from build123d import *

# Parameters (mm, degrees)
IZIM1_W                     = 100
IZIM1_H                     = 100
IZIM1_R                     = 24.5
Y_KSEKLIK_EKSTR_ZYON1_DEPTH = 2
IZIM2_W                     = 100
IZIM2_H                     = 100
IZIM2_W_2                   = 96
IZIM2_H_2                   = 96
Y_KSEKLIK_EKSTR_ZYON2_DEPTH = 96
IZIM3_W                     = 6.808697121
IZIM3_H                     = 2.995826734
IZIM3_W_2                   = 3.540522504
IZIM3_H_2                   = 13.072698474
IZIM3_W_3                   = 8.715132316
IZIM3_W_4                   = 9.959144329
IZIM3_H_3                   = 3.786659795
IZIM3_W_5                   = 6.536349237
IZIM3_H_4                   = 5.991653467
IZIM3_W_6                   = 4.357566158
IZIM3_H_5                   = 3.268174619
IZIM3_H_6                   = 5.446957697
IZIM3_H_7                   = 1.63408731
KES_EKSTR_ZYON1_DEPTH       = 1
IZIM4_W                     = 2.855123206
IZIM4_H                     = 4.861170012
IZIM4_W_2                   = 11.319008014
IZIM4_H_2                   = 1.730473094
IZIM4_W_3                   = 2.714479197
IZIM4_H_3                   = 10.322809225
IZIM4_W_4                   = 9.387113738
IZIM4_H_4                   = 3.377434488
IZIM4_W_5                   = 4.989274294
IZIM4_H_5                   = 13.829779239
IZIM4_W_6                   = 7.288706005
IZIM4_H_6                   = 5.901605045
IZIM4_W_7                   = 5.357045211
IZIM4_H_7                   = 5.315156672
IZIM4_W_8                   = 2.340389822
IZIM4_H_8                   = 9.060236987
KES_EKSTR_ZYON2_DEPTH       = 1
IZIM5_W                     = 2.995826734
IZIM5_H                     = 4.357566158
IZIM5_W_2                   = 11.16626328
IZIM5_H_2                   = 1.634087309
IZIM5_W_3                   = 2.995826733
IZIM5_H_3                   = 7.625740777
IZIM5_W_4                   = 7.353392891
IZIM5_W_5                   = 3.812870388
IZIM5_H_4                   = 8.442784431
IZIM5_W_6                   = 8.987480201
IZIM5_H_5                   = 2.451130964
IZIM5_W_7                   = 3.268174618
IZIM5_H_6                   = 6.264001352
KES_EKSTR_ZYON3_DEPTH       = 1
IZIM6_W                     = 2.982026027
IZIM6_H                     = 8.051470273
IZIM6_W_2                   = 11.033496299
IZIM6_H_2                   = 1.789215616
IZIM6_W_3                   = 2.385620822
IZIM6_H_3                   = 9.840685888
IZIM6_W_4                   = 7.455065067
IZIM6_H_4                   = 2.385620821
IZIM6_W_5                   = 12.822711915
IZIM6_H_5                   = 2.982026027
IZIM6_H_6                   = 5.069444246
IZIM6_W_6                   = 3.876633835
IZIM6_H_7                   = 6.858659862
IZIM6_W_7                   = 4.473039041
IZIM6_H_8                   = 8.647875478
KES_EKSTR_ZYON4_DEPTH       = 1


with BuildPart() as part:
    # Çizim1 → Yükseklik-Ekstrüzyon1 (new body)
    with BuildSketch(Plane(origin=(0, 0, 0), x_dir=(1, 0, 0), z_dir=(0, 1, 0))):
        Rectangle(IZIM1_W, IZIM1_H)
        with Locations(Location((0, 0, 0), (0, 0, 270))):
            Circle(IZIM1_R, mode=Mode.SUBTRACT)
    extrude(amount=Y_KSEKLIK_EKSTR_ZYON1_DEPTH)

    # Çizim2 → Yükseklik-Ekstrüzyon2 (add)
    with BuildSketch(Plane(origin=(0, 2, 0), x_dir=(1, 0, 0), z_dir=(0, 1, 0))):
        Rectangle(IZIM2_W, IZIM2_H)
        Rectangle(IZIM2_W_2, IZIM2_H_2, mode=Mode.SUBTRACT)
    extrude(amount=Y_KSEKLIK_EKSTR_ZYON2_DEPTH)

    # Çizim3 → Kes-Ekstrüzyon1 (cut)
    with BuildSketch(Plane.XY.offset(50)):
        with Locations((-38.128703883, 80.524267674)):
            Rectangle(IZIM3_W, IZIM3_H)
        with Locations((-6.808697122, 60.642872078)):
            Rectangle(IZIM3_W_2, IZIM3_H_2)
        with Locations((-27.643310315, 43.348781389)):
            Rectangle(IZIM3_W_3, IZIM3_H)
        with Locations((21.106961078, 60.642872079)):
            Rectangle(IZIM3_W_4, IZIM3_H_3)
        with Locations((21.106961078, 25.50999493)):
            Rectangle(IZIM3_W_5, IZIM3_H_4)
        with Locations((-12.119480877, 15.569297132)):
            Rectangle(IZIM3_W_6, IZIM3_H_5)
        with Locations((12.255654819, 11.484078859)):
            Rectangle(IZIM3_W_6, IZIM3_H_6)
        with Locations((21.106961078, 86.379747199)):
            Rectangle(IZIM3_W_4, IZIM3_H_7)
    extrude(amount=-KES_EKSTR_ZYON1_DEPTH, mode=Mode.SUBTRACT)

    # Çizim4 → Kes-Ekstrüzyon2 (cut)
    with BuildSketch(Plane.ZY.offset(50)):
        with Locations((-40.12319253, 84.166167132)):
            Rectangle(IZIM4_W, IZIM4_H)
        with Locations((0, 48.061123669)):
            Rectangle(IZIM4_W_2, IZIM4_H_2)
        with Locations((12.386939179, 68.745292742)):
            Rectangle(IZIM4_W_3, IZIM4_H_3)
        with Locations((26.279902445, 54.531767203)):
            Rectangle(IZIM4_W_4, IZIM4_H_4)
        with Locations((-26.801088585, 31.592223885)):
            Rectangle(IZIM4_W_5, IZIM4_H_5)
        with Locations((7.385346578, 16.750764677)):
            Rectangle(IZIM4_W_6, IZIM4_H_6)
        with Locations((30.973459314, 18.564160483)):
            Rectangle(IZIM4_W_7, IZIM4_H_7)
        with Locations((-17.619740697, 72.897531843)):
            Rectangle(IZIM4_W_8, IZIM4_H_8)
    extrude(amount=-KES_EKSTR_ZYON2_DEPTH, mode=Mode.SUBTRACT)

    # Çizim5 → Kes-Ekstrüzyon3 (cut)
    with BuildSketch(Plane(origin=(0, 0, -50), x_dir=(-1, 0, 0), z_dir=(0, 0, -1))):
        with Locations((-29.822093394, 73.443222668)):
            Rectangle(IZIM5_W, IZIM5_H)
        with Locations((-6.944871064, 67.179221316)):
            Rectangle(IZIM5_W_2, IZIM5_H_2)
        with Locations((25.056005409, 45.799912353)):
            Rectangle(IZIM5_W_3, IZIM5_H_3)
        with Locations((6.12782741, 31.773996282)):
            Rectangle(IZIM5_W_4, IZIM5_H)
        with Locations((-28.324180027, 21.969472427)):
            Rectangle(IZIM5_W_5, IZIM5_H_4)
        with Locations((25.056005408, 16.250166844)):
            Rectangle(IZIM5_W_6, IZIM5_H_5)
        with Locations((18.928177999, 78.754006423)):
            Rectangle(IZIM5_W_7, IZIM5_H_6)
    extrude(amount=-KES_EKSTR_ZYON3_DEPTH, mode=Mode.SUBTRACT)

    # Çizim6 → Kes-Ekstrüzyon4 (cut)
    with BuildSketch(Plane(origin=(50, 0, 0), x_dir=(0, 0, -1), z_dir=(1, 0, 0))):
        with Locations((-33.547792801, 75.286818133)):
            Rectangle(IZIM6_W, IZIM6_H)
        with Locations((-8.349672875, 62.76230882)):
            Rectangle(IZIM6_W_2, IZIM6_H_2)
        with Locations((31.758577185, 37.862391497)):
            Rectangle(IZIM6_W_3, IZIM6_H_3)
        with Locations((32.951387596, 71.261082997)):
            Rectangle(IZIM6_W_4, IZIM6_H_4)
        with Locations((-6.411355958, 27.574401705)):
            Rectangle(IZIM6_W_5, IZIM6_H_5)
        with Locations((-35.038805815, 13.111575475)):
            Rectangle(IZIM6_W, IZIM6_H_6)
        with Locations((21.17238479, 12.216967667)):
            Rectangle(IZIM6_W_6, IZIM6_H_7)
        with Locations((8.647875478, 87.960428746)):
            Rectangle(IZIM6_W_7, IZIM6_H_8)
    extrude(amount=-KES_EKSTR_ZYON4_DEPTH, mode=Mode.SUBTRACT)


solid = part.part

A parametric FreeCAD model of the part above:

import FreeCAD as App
import Part
import Sketcher


def add_polygon(sketch, points):
    """Adds a closed chain of lines whose ends are joined by coincident constraints."""
    first, n = sketch.GeometryCount, len(points)
    for a, b in zip(points, points[1:] + points[:1]):
        sketch.addGeometry(Part.LineSegment(App.Vector(*a, 0), App.Vector(*b, 0)), False)
    for i in range(n):
        sketch.addConstraint(Sketcher.Constraint("Coincident", first + i, 2, first + (i + 1) % n, 1))

doc = App.newDocument("Part")
body = doc.addObject("PartDesign::Body", "Body")

sketch1 = body.newObject("Sketcher::SketchObject", "Sketch")
sketch1.AttachmentSupport = (doc.getObject("XZ_Plane"), [""])
sketch1.MapMode = "FlatFace"
add_polygon(sketch1, [(-50, -50), (-50, 50), (50, 50), (50, -50)])
sketch1.addGeometry(Part.Circle(App.Vector(0, 0, 0), App.Vector(0, 0, 1), 24), False)
sketch1.addConstraint([
    Sketcher.Constraint("Vertical", 0),
    Sketcher.Constraint("Horizontal", 1),
    Sketcher.Constraint("Vertical", 2),
    Sketcher.Constraint("Horizontal", 3),
    Sketcher.Constraint("Coincident", 4, 3, -1, 1),
    Sketcher.Constraint("Symmetric", 0, 2, 2, 2, -1, 1),
    Sketcher.Constraint("Equal", 3, 0),
    Sketcher.Constraint("Diameter", 4, 49.0),
    Sketcher.Constraint("DistanceX", 1, 1, 1, 2, 100.0),
])
pad1 = body.newObject("PartDesign::Pad", "Pad")
pad1.Profile = sketch1
pad1.Length = 2
pad1.Reversed = True

sketch2 = body.newObject("Sketcher::SketchObject", "Sketch001")
sketch2.AttachmentSupport = (doc.getObject("XZ_Plane"), [""])
sketch2.MapMode = "FlatFace"
sketch2.AttachmentOffset = App.Placement(App.Vector(0, 0, -2), App.Rotation())
add_polygon(sketch2, [(-50, -50), (-50, 50), (50, 50), (50, -50)])
add_polygon(sketch2, [(48, 48), (-48, 48), (-48, -48), (48, -48)])
sketch2.addConstraint([
    Sketcher.Constraint("Vertical", 0),
    Sketcher.Constraint("Horizontal", 1),
    Sketcher.Constraint("Vertical", 2),
    Sketcher.Constraint("Horizontal", 3),
    Sketcher.Constraint("Horizontal", 4),
    Sketcher.Constraint("Vertical", 5),
    Sketcher.Constraint("Horizontal", 6),
    Sketcher.Constraint("Vertical", 7),
    Sketcher.Constraint("Symmetric", 0, 2, 2, 2, -1, 1),
    Sketcher.Constraint("Symmetric", 4, 2, 6, 2, -1, 1),
    Sketcher.Constraint("Equal", 3, 0),
    Sketcher.Constraint("Equal", 6, 5),
    Sketcher.Constraint("DistanceX", 1, 1, 1, 2, 100.0),
    Sketcher.Constraint("DistanceX", 4, 2, 4, 1, 96.0),
])
pad2 = body.newObject("PartDesign::Pad", "Pad001")
pad2.Profile = sketch2
pad2.Length = 96
pad2.Reversed = True

sketch3 = body.newObject("Sketcher::SketchObject", "Sketch002")
sketch3.AttachmentSupport = (doc.getObject("XY_Plane"), [""])
sketch3.MapMode = "FlatFace"
sketch3.AttachmentOffset = App.Placement(App.Vector(0, 0, 50), App.Rotation())
add_polygon(sketch3, [(-41.5, 82), (-41.5, 79), (-34.7, 79), (-34.7, 82)])
add_polygon(sketch3, [(-8.6, 67.2), (-8.6, 54.1), (-5, 54.1), (-5, 67.2)])
add_polygon(sketch3, [(-32, 44.8), (-32, 41.9), (-23.3, 41.9), (-23.3, 44.8)])
add_polygon(sketch3, [(16.1, 62.5), (16.1, 58.7), (26.1, 58.7), (26.1, 62.5)])
add_polygon(sketch3, [(17.8, 28.5), (17.8, 22.5), (24.4, 22.5), (24.4, 28.5)])
add_polygon(sketch3, [(-14.3, 17.2), (-14.3, 13.9), (-9.9, 13.9), (-9.9, 17.2)])
add_polygon(sketch3, [(10.1, 14.2), (10.1, 8.8), (14.4, 8.8), (14.4, 14.2)])
add_polygon(sketch3, [(16.1, 87.2), (16.1, 85.6), (26.1, 85.6), (26.1, 87.2)])
sketch3.addConstraint([
    Sketcher.Constraint("Vertical", 0),
    Sketcher.Constraint("Horizontal", 1),
    Sketcher.Constraint("Vertical", 2),
    Sketcher.Constraint("Horizontal", 3),
    Sketcher.Constraint("Vertical", 4),
    Sketcher.Constraint("Horizontal", 5),
    Sketcher.Constraint("Vertical", 6),
    Sketcher.Constraint("Horizontal", 7),
    Sketcher.Constraint("Vertical", 8),
    Sketcher.Constraint("Horizontal", 9),
    Sketcher.Constraint("Vertical", 10),
    Sketcher.Constraint("Horizontal", 11),
    Sketcher.Constraint("Vertical", 12),
    Sketcher.Constraint("Horizontal", 13),
    Sketcher.Constraint("Vertical", 14),
    Sketcher.Constraint("Horizontal", 15),
    Sketcher.Constraint("Vertical", 16),
    Sketcher.Constraint("Horizontal", 17),
    Sketcher.Constraint("Vertical", 18),
    Sketcher.Constraint("Horizontal", 19),
    Sketcher.Constraint("Vertical", 20),
    Sketcher.Constraint("Horizontal", 21),
    Sketcher.Constraint("Vertical", 22),
    Sketcher.Constraint("Horizontal", 23),
    Sketcher.Constraint("Vertical", 24),
    Sketcher.Constraint("Horizontal", 25),
    Sketcher.Constraint("Vertical", 26),
    Sketcher.Constraint("Horizontal", 27),
    Sketcher.Constraint("Vertical", 28),
    Sketcher.Constraint("Horizontal", 29),
    Sketcher.Constraint("Vertical", 30),
    Sketcher.Constraint("Horizontal", 31),
    Sketcher.Constraint("Vertical", 15, 2, 28, 2),
    Sketcher.Constraint("Vertical", 14, 2, 29, 2),
    Sketcher.Constraint("Equal", 23, 25),
    Sketcher.Constraint("Equal", 2, 8),
    Sketcher.Constraint("DistanceY", 4, 2, 4, 1, 13.072698),
    Sketcher.Constraint("DistanceX", 17, 1, 17, 2, 6.536349),
    Sketcher.Constraint("DistanceY", 12, 2, 12, 1, 3.78666),
    Sketcher.Constraint("DistanceY", -1, 1, 14, 2, 62.536202),
    Sketcher.Constraint("DistanceY", -1, 1, 24, 2, 8.7606),
    Sketcher.Constraint("DistanceY", 15, 2, 28, 2, 23.026502),
    Sketcher.Constraint("DistanceX", 1, 1, 1, 2, 6.808697),
    Sketcher.Constraint("DistanceX", 5, 1, 5, 2, 3.540523),
    Sketcher.Constraint("DistanceX", 9, 1, 9, 2, 8.715132),
    Sketcher.Constraint("DistanceX", 13, 1, 13, 2, 9.959144),
    Sketcher.Constraint("DistanceX", 21, 1, 21, 2, 4.357566),
    Sketcher.Constraint("DistanceY", 0, 2, 0, 1, 2.995827),
    Sketcher.Constraint("DistanceY", 16, 2, 16, 1, 5.991653),
    Sketcher.Constraint("DistanceY", 20, 2, 20, 1, 3.268175),
    Sketcher.Constraint("DistanceY", 24, 2, 24, 1, 5.446958),
    Sketcher.Constraint("DistanceY", 28, 2, 28, 1, 1.634087),
    Sketcher.Constraint("DistanceY", -1, 1, 2, 2, 82.022181),
    Sketcher.Constraint("DistanceX", 4, 2, -1, 1, 8.578958),
    Sketcher.Constraint("DistanceY", -1, 1, 6, 2, 67.179221),
    Sketcher.Constraint("DistanceY", -1, 1, 8, 2, 41.850868),
    Sketcher.Constraint("DistanceX", -1, 1, 12, 2, 16.127389),
    Sketcher.Constraint("DistanceY", -1, 1, 16, 2, 22.514168),
    Sketcher.Constraint("DistanceY", -1, 1, 20, 2, 13.93521),
    Sketcher.Constraint("DistanceX", -1, 1, 24, 2, 10.076872),
    Sketcher.Constraint("DistanceX", 1, 2, 5, 2, 29.685919),
    Sketcher.Constraint("DistanceX", 8, 2, 4, 2, 23.421918),
    Sketcher.Constraint("DistanceX", 9, 2, 20, 2, 8.98748),
    Sketcher.Constraint("DistanceX", 20, 2, 16, 2, 32.13705),
])
pocket1 = body.newObject("PartDesign::Pocket", "Pocket")
pocket1.Profile = sketch3
pocket1.Length = 1

sketch4 = body.newObject("Sketcher::SketchObject", "Sketch003")
sketch4.AttachmentSupport = (doc.getObject("YZ_Plane"), [""])
sketch4.MapMode = "FlatFace"
sketch4.AttachmentOffset = App.Placement(App.Vector(0, 0, -50), App.Rotation())
add_polygon(sketch4, [(86.6, -41.6), (81.7, -41.6), (81.7, -38.7), (86.6, -38.7)])
add_polygon(sketch4, [(48.9, -5.7), (47.2, -5.7), (47.2, 5.7), (48.9, 5.7)])
add_polygon(sketch4, [(73.9, 11), (63.6, 11), (63.6, 13.7), (73.9, 13.7)])
add_polygon(sketch4, [(56.2, 21.6), (52.8, 21.6), (52.8, 31), (56.2, 31)])
add_polygon(sketch4, [(38.5, -29.3), (24.7, -29.3), (24.7, -24.3), (38.5, -24.3)])
add_polygon(sketch4, [(19.7, 3.7), (13.8, 3.7), (13.8, 11), (19.7, 11)])
add_polygon(sketch4, [(21.2, 28.3), (15.9, 28.3), (15.9, 33.7), (21.2, 33.7)])
add_polygon(sketch4, [(77.4, -18.8), (68.4, -18.8), (68.4, -16.4), (77.4, -16.4)])
sketch4.addConstraint([
    Sketcher.Constraint("Horizontal", 0),
    Sketcher.Constraint("Vertical", 1),
    Sketcher.Constraint("Horizontal", 2),
    Sketcher.Constraint("Vertical", 3),
    Sketcher.Constraint("Horizontal", 4),
    Sketcher.Constraint("Vertical", 5),
    Sketcher.Constraint("Horizontal", 6),
    Sketcher.Constraint("Vertical", 7),
    Sketcher.Constraint("Horizontal", 8),
    Sketcher.Constraint("Vertical", 9),
    Sketcher.Constraint("Horizontal", 10),
    Sketcher.Constraint("Vertical", 11),
    Sketcher.Constraint("Horizontal", 12),
    Sketcher.Constraint("Vertical", 13),
    Sketcher.Constraint("Horizontal", 14),
    Sketcher.Constraint("Vertical", 15),
    Sketcher.Constraint("Horizontal", 16),
    Sketcher.Constraint("Vertical", 17),
    Sketcher.Constraint("Horizontal", 18),
    Sketcher.Constraint("Vertical", 19),
    Sketcher.Constraint("Horizontal", 20),
    Sketcher.Constraint("Vertical", 21),
    Sketcher.Constraint("Horizontal", 22),
    Sketcher.Constraint("Vertical", 23),
    Sketcher.Constraint("Horizontal", 24),
    Sketcher.Constraint("Vertical", 25),
    Sketcher.Constraint("Horizontal", 26),
    Sketcher.Constraint("Vertical", 27),
    Sketcher.Constraint("Horizontal", 28),
    Sketcher.Constraint("Vertical", 29),
    Sketcher.Constraint("Horizontal", 30),
    Sketcher.Constraint("Vertical", 31),
    Sketcher.Constraint("Horizontal", 11, 2, 21, 2),
    Sketcher.Constraint("DistanceX", 5, 2, 8, 2, 16.388001),
    Sketcher.Constraint("DistanceX", 0, 2, 0, 1, 4.86117),
    Sketcher.Constraint("DistanceX", 8, 2, 8, 1, 10.322809),
    Sketcher.Constraint("DistanceX", 16, 2, 16, 1, 13.829779),
    Sketcher.Constraint("DistanceY", 5, 1, 5, 2, 11.319008),
    Sketcher.Constraint("DistanceY", 9, 1, 9, 2, 2.714479),
    Sketcher.Constraint("DistanceY", 29, 1, 29, 2, 2.34039),
    Sketcher.Constraint("DistanceY", -1, 1, 8, 2, 11.0297),
    Sketcher.Constraint("DistanceX", 20, 2, 6, 2, 35.126398),
    Sketcher.Constraint("DistanceX", 30, 2, 2, 2, 9.169102),
    Sketcher.Constraint("DistanceX", 4, 2, 4, 1, 1.730473),
    Sketcher.Constraint("DistanceX", 12, 2, 12, 1, 3.377434),
    Sketcher.Constraint("DistanceX", 20, 2, 20, 1, 5.901605),
    Sketcher.Constraint("DistanceX", 24, 2, 24, 1, 5.315157),
    Sketcher.Constraint("DistanceX", 28, 2, 28, 1, 9.060237),
    Sketcher.Constraint("DistanceY", 1, 1, 1, 2, 2.855123),
    Sketcher.Constraint("DistanceY", 13, 1, 13, 2, 9.387114),
    Sketcher.Constraint("DistanceY", 17, 1, 17, 2, 4.989274),
    Sketcher.Constraint("DistanceY", 21, 1, 21, 2, 7.288706),
    Sketcher.Constraint("DistanceY", 25, 1, 25, 2, 5.357045),
    Sketcher.Constraint("DistanceY", 1, 2, -1, 1, 38.695631),
    Sketcher.Constraint("DistanceX", -1, 1, 6, 2, 48.92636),
    Sketcher.Constraint("DistanceX", -1, 1, 12, 2, 52.84305),
    Sketcher.Constraint("DistanceY", -1, 1, 13, 2, 30.973459),
    Sketcher.Constraint("DistanceY", 17, 2, -1, 1, 24.306451),
    Sketcher.Constraint("DistanceY", -1, 1, 25, 2, 33.651982),
    Sketcher.Constraint("DistanceX", -1, 1, 26, 2, 21.221739),
    Sketcher.Constraint("DistanceX", -1, 1, 30, 2, 77.42765),
    Sketcher.Constraint("DistanceY", 0, 2, 4, 2, 35.89125),
    Sketcher.Constraint("DistanceY", 28, 2, 7, 2, 13.130432),
    Sketcher.Constraint("DistanceX", -1, 1, 16, 2, 24.677334),
])
pocket2 = body.newObject("PartDesign::Pocket", "Pocket001")
pocket2.Profile = sketch4
pocket2.Length = 1
pocket2.Reversed = True

sketch5 = body.newObject("Sketcher::SketchObject", "Sketch004")
sketch5.AttachmentSupport = (doc.getObject("XY_Plane"), [""])
sketch5.MapMode = "FlatFace"
sketch5.AttachmentOffset = App.Placement(App.Vector(0, 0, -50), App.Rotation())
add_polygon(sketch5, [(31.3, 75.6), (31.3, 71.3), (28.3, 71.3), (28.3, 75.6)])
add_polygon(sketch5, [(12.5, 68), (12.5, 66.4), (1.4, 66.4), (1.4, 68)])
add_polygon(sketch5, [(-23.6, 49.6), (-23.6, 42), (-26.6, 42), (-26.6, 49.6)])
add_polygon(sketch5, [(-2.5, 34), (-2.5, 29.6), (-9.8, 29.6), (-9.8, 34)])
add_polygon(sketch5, [(30.2, 26.2), (30.2, 17.7), (26.4, 17.7), (26.4, 26.2)])
add_polygon(sketch5, [(-20.6, 17.5), (-20.6, 15), (-29.5, 15), (-29.5, 17.5)])
add_polygon(sketch5, [(-17.3, 81.9), (-17.3, 75.6), (-20.6, 75.6), (-20.6, 81.9)])
sketch5.addConstraint([
    Sketcher.Constraint("Vertical", 0),
    Sketcher.Constraint("Horizontal", 1),
    Sketcher.Constraint("Vertical", 2),
    Sketcher.Constraint("Horizontal", 3),
    Sketcher.Constraint("Vertical", 4),
    Sketcher.Constraint("Horizontal", 5),
    Sketcher.Constraint("Vertical", 6),
    Sketcher.Constraint("Horizontal", 7),
    Sketcher.Constraint("Vertical", 8),
    Sketcher.Constraint("Horizontal", 9),
    Sketcher.Constraint("Vertical", 10),
    Sketcher.Constraint("Horizontal", 11),
    Sketcher.Constraint("Vertical", 12),
    Sketcher.Constraint("Horizontal", 13),
    Sketcher.Constraint("Vertical", 14),
    Sketcher.Constraint("Horizontal", 15),
    Sketcher.Constraint("Vertical", 16),
    Sketcher.Constraint("Horizontal", 17),
    Sketcher.Constraint("Vertical", 18),
    Sketcher.Constraint("Horizontal", 19),
    Sketcher.Constraint("Vertical", 20),
    Sketcher.Constraint("Horizontal", 21),
    Sketcher.Constraint("Vertical", 22),
    Sketcher.Constraint("Horizontal", 23),
    Sketcher.Constraint("Vertical", 24),
    Sketcher.Constraint("Horizontal", 25),
    Sketcher.Constraint("Vertical", 26),
    Sketcher.Constraint("Horizontal", 27),
    Sketcher.Constraint("Horizontal", 3, 2, 24, 2),
    Sketcher.Constraint("Vertical", 23, 2, 25, 2),
    Sketcher.Constraint("Equal", 3, 9),
    Sketcher.Constraint("Equal", 2, 12),
    Sketcher.Constraint("DistanceY", 24, 2, 24, 1, 6.264001),
    Sketcher.Constraint("DistanceX", 11, 2, 24, 2, 6.264001),
    Sketcher.Constraint("DistanceX", 17, 2, 17, 1, 3.81287),
    Sketcher.Constraint("DistanceX", 21, 2, 21, 1, 8.98748),
    Sketcher.Constraint("DistanceY", 8, 2, 8, 1, 7.625741),
    Sketcher.Constraint("DistanceY", 20, 2, 20, 1, 2.451131),
    Sketcher.Constraint("DistanceY", -1, 1, 20, 2, 15.024601),
    Sketcher.Constraint("DistanceY", 16, 2, 15, 2, 16.204699),
    Sketcher.Constraint("DistanceX", 1, 2, 1, 1, 2.995827),
    Sketcher.Constraint("DistanceX", 5, 2, 5, 1, 11.166263),
    Sketcher.Constraint("DistanceX", 13, 2, 13, 1, 7.353393),
    Sketcher.Constraint("DistanceX", 25, 2, 25, 1, 3.268175),
    Sketcher.Constraint("DistanceY", 0, 2, 0, 1, 4.357566),
    Sketcher.Constraint("DistanceY", 4, 2, 4, 1, 1.634087),
    Sketcher.Constraint("DistanceY", 16, 2, 16, 1, 8.442784),
    Sketcher.Constraint("DistanceY", -1, 1, 0, 2, 71.26444),
    Sketcher.Constraint("DistanceX", -1, 1, 1, 2, 28.32418),
    Sketcher.Constraint("DistanceX", -1, 1, 5, 2, 1.361739),
    Sketcher.Constraint("DistanceY", -1, 1, 8, 2, 41.987042),
    Sketcher.Constraint("DistanceX", 9, 2, -1, 1, 26.553919),
    Sketcher.Constraint("DistanceX", 12, 2, -1, 1, 2.451131),
    Sketcher.Constraint("DistanceY", -1, 1, 14, 2, 33.952779),
    Sketcher.Constraint("DistanceY", 4, 2, 1, 2, 4.902262),
    Sketcher.Constraint("DistanceX", 13, 2, 16, 2, 40.035139),
])
pocket3 = body.newObject("PartDesign::Pocket", "Pocket002")
pocket3.Profile = sketch5
pocket3.Length = 1
pocket3.Reversed = True

sketch6 = body.newObject("Sketcher::SketchObject", "Sketch005")
sketch6.AttachmentSupport = (doc.getObject("YZ_Plane"), [""])
sketch6.MapMode = "FlatFace"
sketch6.AttachmentOffset = App.Placement(App.Vector(0, 0, 50), App.Rotation())
add_polygon(sketch6, [(79.3, 35), (71.3, 35), (71.3, 32.1), (79.3, 32.1)])
add_polygon(sketch6, [(63.7, 13.9), (61.9, 13.9), (61.9, 2.8), (63.7, 2.8)])
add_polygon(sketch6, [(42.8, -30.6), (32.9, -30.6), (32.9, -33), (42.8, -33)])
add_polygon(sketch6, [(72.5, -29.2), (70.1, -29.2), (70.1, -36.7), (72.5, -36.7)])
add_polygon(sketch6, [(29.1, 12.8), (26.1, 12.8), (26.1, 0), (29.1, 0)])
add_polygon(sketch6, [(15.6, 36.5), (10.6, 36.5), (10.6, 33.5), (15.6, 33.5)])
add_polygon(sketch6, [(15.6, -19.2), (8.8, -19.2), (8.8, -23.1), (15.6, -23.1)])
add_polygon(sketch6, [(92.3, -6.4), (83.6, -6.4), (83.6, -10.9), (92.3, -10.9)])
sketch6.addConstraint([
    Sketcher.Constraint("Horizontal", 0),
    Sketcher.Constraint("Vertical", 1),
    Sketcher.Constraint("Horizontal", 2),
    Sketcher.Constraint("Vertical", 3),
    Sketcher.Constraint("Horizontal", 4),
    Sketcher.Constraint("Vertical", 5),
    Sketcher.Constraint("Horizontal", 6),
    Sketcher.Constraint("Vertical", 7),
    Sketcher.Constraint("Horizontal", 8),
    Sketcher.Constraint("Vertical", 9),
    Sketcher.Constraint("Horizontal", 10),
    Sketcher.Constraint("Vertical", 11),
    Sketcher.Constraint("Horizontal", 12),
    Sketcher.Constraint("Vertical", 13),
    Sketcher.Constraint("Horizontal", 14),
    Sketcher.Constraint("Vertical", 15),
    Sketcher.Constraint("Horizontal", 16),
    Sketcher.Constraint("Vertical", 17),
    Sketcher.Constraint("Horizontal", 18),
    Sketcher.Constraint("Vertical", 19),
    Sketcher.Constraint("Horizontal", 20),
    Sketcher.Constraint("Vertical", 21),
    Sketcher.Constraint("Horizontal", 22),
    Sketcher.Constraint("Vertical", 23),
    Sketcher.Constraint("Horizontal", 24),
    Sketcher.Constraint("Vertical", 25),
    Sketcher.Constraint("Horizontal", 26),
    Sketcher.Constraint("Vertical", 27),
    Sketcher.Constraint("Horizontal", 28),
    Sketcher.Constraint("Vertical", 29),
    Sketcher.Constraint("Horizontal", 30),
    Sketcher.Constraint("Vertical", 31),
    Sketcher.Constraint("PointOnObject", 17, 2, -1),
    Sketcher.Constraint("Vertical", 23, 2, 26, 2),
    Sketcher.Constraint("Equal", 18, 1),
    Sketcher.Constraint("Equal", 14, 9),
    Sketcher.Constraint("Equal", 3, 21),
    Sketcher.Constraint("DistanceX", 0, 2, 0, 1, 8.05147),
    Sketcher.Constraint("DistanceX", 12, 2, 12, 1, 2.385621),
    Sketcher.Constraint("DistanceX", 24, 2, 24, 1, 6.85866),
    Sketcher.Constraint("DistanceY", 17, 2, 17, 1, 12.822712),
    Sketcher.Constraint("DistanceY", 29, 2, 29, 1, 4.473039),
    Sketcher.Constraint("DistanceX", -1, 1, 4, 2, 61.867701),
    Sketcher.Constraint("DistanceY", 25, 2, -1, 1, 23.110702),
    Sketcher.Constraint("DistanceY", 8, 2, 24, 2, 11.331699),
    Sketcher.Constraint("DistanceY", 15, 2, 28, 2, 22.812499),
    Sketcher.Constraint("DistanceX", 4, 2, 4, 1, 1.789216),
    Sketcher.Constraint("DistanceX", 8, 2, 8, 1, 9.840686),
    Sketcher.Constraint("DistanceX", 16, 2, 16, 1, 2.982026),
    Sketcher.Constraint("DistanceX", 20, 2, 20, 1, 5.069444),
    Sketcher.Constraint("DistanceX", 28, 2, 28, 1, 8.647875),
    Sketcher.Constraint("DistanceY", 5, 2, 5, 1, 11.033496),
    Sketcher.Constraint("DistanceY", 13, 2, 13, 1, 7.455065),
    Sketcher.Constraint("DistanceY", 25, 2, 25, 1, 3.876634),
    Sketcher.Constraint("DistanceY", -1, 1, 1, 2, 32.05678),
    Sketcher.Constraint("DistanceY", -1, 1, 4, 2, 13.866421),
    Sketcher.Constraint("DistanceX", -1, 1, 8, 2, 32.942049),
    Sketcher.Constraint("DistanceY", 13, 2, -1, 1, 36.67892),
    Sketcher.Constraint("DistanceX", -1, 1, 16, 2, 26.083389),
    Sketcher.Constraint("DistanceY", -1, 1, 20, 2, 36.529819),
    Sketcher.Constraint("DistanceX", -1, 1, 28, 2, 83.636491),
    Sketcher.Constraint("DistanceX", 4, 2, 1, 2, 9.393382),
    Sketcher.Constraint("DistanceX", 11, 2, 12, 2, 27.285538),
    Sketcher.Constraint("DistanceX", 20, 2, 19, 2, 18.488561),
])
pocket4 = body.newObject("PartDesign::Pocket", "Pocket003")
pocket4.Profile = sketch6
pocket4.Length = 1

doc.recompute()
